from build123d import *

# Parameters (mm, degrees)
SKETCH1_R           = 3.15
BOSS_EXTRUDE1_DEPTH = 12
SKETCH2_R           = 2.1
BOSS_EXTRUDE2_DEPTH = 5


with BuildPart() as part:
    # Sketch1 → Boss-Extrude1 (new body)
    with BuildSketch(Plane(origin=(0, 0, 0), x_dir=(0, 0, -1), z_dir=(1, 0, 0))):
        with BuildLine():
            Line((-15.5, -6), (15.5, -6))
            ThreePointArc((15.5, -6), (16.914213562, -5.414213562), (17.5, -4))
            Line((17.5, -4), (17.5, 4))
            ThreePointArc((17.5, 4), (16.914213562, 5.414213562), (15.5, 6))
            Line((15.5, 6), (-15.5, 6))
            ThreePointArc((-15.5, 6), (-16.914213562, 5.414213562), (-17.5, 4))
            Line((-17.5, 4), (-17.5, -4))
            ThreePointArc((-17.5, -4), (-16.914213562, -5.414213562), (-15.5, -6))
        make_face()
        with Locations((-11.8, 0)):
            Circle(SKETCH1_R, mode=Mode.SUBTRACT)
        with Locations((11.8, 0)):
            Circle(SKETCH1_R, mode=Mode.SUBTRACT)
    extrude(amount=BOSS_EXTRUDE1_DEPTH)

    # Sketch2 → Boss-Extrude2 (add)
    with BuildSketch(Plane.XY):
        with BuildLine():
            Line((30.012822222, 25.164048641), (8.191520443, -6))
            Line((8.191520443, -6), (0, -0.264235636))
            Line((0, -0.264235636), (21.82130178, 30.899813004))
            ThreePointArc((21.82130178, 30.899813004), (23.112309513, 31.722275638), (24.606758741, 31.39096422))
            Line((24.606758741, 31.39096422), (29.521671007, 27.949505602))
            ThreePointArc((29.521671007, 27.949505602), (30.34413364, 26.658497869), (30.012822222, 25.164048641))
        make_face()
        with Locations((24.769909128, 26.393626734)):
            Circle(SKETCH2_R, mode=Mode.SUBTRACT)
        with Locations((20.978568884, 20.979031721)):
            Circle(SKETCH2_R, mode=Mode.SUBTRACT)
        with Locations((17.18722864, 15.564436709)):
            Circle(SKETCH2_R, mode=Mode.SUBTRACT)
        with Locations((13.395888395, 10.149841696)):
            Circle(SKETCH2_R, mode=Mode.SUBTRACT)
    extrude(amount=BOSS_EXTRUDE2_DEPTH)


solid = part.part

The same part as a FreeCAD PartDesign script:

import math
import FreeCAD as App
import Part
import Sketcher

V = App.Vector
Q = App.Units.Quantity

doc = App.newDocument("Part")
body = doc.addObject("PartDesign::Body", "Body")

# Sketch on YZ plane
sketch1 = body.newObject("Sketcher::SketchObject", "Sketch")
sketch1.AttachmentSupport = (doc.getObject("YZ_Plane"), [""])
sketch1.MapMode = "FlatFace"
sketch1.addGeometry([
    Part.LineSegment(V(-6, 15.5, 0), V(-6, -15.5, 0)),  # 0
    Part.ArcOfCircle(Part.Circle(V(-4, -15.5, 0), V(0, 0, 1), 2), math.radians(-180), math.radians(-90)),  # 1
    Part.LineSegment(V(-4, -17.5, 0), V(4, -17.5, 0)),  # 2
    Part.ArcOfCircle(Part.Circle(V(4, -15.5, 0), V(0, 0, 1), 2), math.radians(-90), math.radians(0)),  # 3
    Part.LineSegment(V(6, -15.5, 0), V(6, 15.5, 0)),  # 4
    Part.ArcOfCircle(Part.Circle(V(4, 15.5, 0), V(0, 0, 1), 2), math.radians(0), math.radians(90)),  # 5
    Part.LineSegment(V(4, 17.5, 0), V(-4, 17.5, 0)),  # 6
    Part.ArcOfCircle(Part.Circle(V(-4, 15.5, 0), V(0, 0, 1), 2), math.radians(90), math.radians(180)),  # 7
    Part.Circle(V(0, 11.8, 0), V(0, 0, 1), 3.15),  # 8
    Part.Circle(V(0, -11.8, 0), V(0, 0, 1), 3.15),  # 9
], False)
sketch1.addConstraint([
    Sketcher.Constraint("Tangent", 0, 2, 1, 1),
    Sketcher.Constraint("Tangent", 1, 2, 2, 1),
    Sketcher.Constraint("Tangent", 2, 2, 3, 1),
    Sketcher.Constraint("Tangent", 3, 2, 4, 1),
    Sketcher.Constraint("Tangent", 4, 2, 5, 1),
    Sketcher.Constraint("Tangent", 5, 2, 6, 1),
    Sketcher.Constraint("Tangent", 6, 2, 7, 1),
    Sketcher.Constraint("Tangent", 7, 2, 0, 1),
    Sketcher.Constraint("Vertical", 0),
    Sketcher.Constraint("Horizontal", 2),
    Sketcher.Constraint("Vertical", 4),
    Sketcher.Constraint("Horizontal", 6),
    Sketcher.Constraint("Equal", 1, 3),
    Sketcher.Constraint("Equal", 3, 5),
    Sketcher.Constraint("Equal", 5, 7),
    Sketcher.Constraint("Equal", 8, 9),
    Sketcher.Constraint("Symmetric", 1, 3, 5, 3, -1, 1),
    Sketcher.Constraint("Symmetric", 8, 3, 9, 3, -1, 1),
    Sketcher.Constraint("PointOnObject", 8, 3, -2),
    Sketcher.Constraint("Radius", 1, 2.0),
    Sketcher.Constraint("Diameter", 8, 6.3),
    Sketcher.Constraint("DistanceX", 2, 1, 2, 2, 8.0),
    Sketcher.Constraint("DistanceY", 0, 2, 0, 1, 31.0),
    Sketcher.Constraint("DistanceY", -1, 1, 8, 3, 11.8),
])
pad1 = body.newObject("PartDesign::Pad", "Pad")
pad1.Profile = sketch1
pad1.Length = 12

# Sketch on XY plane
sketch2 = body.newObject("Sketcher::SketchObject", "Sketch001")
sketch2.AttachmentSupport = (doc.getObject("XY_Plane"), [""])
sketch2.MapMode = "FlatFace"
sketch2.addGeometry([
    Part.LineSegment(V(8.19152, -6, 0), V(30.012822, 25.164049, 0)),  # 0
    Part.ArcOfCircle(Part.Circle(V(28.374518, 26.311202, 0), V(0, 0, 1), 2), math.radians(-35), math.radians(55)),  # 1
    Part.LineSegment(V(29.521671, 27.949506, 0), V(24.606759, 31.390964, 0)),  # 2
    Part.ArcOfCircle(Part.Circle(V(23.459606, 29.75266, 0), V(0, 0, 1), 2), math.radians(55), math.radians(145)),  # 3
    Part.LineSegment(V(21.821302, 30.899813, 0), V(0, -0.264236, 0)),  # 4
    Part.LineSegment(V(0, -0.264236, 0), V(8.19152, -6, 0)),  # 5
    Part.Circle(V(13.395888, 10.149842, 0), V(0, 0, 1), 2.1),  # 6
    Part.Circle(V(17.187229, 15.564437, 0), V(0, 0, 1), 2.1),  # 7
    Part.Circle(V(20.978569, 20.979032, 0), V(0, 0, 1), 2.1),  # 8
    Part.Circle(V(24.769909, 26.393627, 0), V(0, 0, 1), 2.1),  # 9
], False)
sketch2.addConstraint([
    Sketcher.Constraint("Tangent", 0, 2, 1, 1),
    Sketcher.Constraint("Tangent", 1, 2, 2, 1),
    Sketcher.Constraint("Tangent", 2, 2, 3, 1),
    Sketcher.Constraint("Tangent", 3, 2, 4, 1),
    Sketcher.Constraint("Coincident", 4, 2, 5, 1),
    Sketcher.Constraint("Coincident", 5, 2, 0, 1),
    Sketcher.Constraint("Equal", 1, 3),
    Sketcher.Constraint("Equal", 6, 7),
    Sketcher.Constraint("Equal", 7, 8),
    Sketcher.Constraint("Equal", 8, 9),
    Sketcher.Constraint("PointOnObject", 4, 2, -2),
    Sketcher.Constraint("Perpendicular", 0, 2),
    Sketcher.Constraint("Perpendicular", 2, 4),
    Sketcher.Constraint("Perpendicular", 4, 5),
    Sketcher.Constraint("Radius", 1, 2.0),
    Sketcher.Constraint("Diameter", 6, 4.2),
    Sketcher.Constraint("Angle", 0, Q("55 deg")),
    Sketcher.Constraint("Distance", 2, 6.0),
    Sketcher.Constraint("DistanceY", 5, 2, -1, 1, 6.0),
    Sketcher.Constraint("DistanceY", -1, 1, 1, 3, 26.311202),
    Sketcher.Constraint("DistanceX", -1, 1, 6, 3, 13.395888),
    Sketcher.Constraint("DistanceY", -1, 1, 6, 3, 10.149842),
    Sketcher.Constraint("DistanceX", -1, 1, 7, 3, 17.187229),
    Sketcher.Constraint("DistanceX", -1, 1, 8, 3, 20.978569),
    Sketcher.Constraint("DistanceY", -1, 1, 8, 3, 20.979032),
    Sketcher.Constraint("DistanceX", -1, 1, 9, 3, 24.769909),
    Sketcher.Constraint("DistanceY", 7, 3, 9, 3, 10.82919),
    Sketcher.Constraint("DistanceY", 0, 2, 9, 3, 1.229578),
])
pad2 = body.newObject("PartDesign::Pad", "Pad001")
pad2.Profile = sketch2
pad2.Length = 5

doc.recompute()
